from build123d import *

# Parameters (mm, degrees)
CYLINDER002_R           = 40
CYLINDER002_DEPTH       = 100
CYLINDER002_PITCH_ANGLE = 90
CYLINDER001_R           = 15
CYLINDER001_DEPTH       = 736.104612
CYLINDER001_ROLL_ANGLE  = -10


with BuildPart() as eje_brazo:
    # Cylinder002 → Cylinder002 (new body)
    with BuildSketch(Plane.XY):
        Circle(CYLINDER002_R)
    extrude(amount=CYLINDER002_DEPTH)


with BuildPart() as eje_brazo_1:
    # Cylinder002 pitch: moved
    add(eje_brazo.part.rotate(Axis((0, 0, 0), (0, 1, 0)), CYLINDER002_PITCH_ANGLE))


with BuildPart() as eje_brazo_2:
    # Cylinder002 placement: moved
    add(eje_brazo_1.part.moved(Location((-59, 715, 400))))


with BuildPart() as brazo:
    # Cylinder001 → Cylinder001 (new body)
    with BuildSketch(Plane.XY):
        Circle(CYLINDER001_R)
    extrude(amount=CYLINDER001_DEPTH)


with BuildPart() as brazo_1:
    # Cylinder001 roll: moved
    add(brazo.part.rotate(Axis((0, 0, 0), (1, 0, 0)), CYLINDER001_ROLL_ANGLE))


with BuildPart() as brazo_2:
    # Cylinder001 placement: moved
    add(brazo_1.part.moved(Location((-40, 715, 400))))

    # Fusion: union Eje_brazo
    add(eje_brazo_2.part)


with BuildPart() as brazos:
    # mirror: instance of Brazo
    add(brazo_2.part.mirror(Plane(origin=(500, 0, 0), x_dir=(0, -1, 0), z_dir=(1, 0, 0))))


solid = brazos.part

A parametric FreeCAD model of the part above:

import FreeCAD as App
import Part
import Sketcher

V = App.Vector
Q = App.Units.Quantity

doc = App.newDocument("Part")
body = doc.addObject("PartDesign::Body", "Body")

sketch1 = doc.addObject("Sketcher::SketchObject", "Sketch")
body.addObject(sketch1)
sketch1.AttachmentSupport = (doc.XY_Plane, [""])
sketch1.MapMode = "FlatFace"
sketch1.addGeometry(Part.Circle(V(0, 0, 0), V(0, 0, 1), 40), False)
sketch1.addConstraint(Sketcher.Constraint("Coincident", 0, 3, -1, 1))
sketch1.addConstraint(Sketcher.Constraint("Diameter", 0, Q("80 mm")))
pad1 = doc.addObject("PartDesign::Pad", "Pad")
body.addObject(pad1)
pad1.Profile = sketch1
pad1.Length = 100
body2 = doc.addObject("PartDesign::Body", "Body001")
doc.recompute()

body.Placement = App.Placement(V(0, 0, 0), App.Rotation(V(0, 1, 0), 90))
boolean = doc.addObject("PartDesign::Boolean", "Boolean")
body2.addObject(boolean)
boolean.Type = "Fuse"
boolean.addObjects([body])
body3 = doc.addObject("PartDesign::Body", "Body002")
doc.recompute()

body2.Placement = App.Placement(V(-59, 715, 400), App.Rotation(V(0, 0, 1), 0))
boolean2 = doc.addObject("PartDesign::Boolean", "Boolean001")
body3.addObject(boolean2)
boolean2.Type = "Fuse"
boolean2.addObjects([body2])
body4 = doc.addObject("PartDesign::Body", "Body003")

sketch2 = doc.addObject("Sketcher::SketchObject", "Sketch001")
body4.addObject(sketch2)
sketch2.AttachmentSupport = (doc.getObject("XY_Plane003"), [""])
sketch2.MapMode = "FlatFace"
sketch2.addGeometry(Part.Circle(V(0, 0, 0), V(0, 0, 1), 15), False)
sketch2.addConstraint(Sketcher.Constraint("Coincident", 0, 3, -1, 1))
sketch2.addConstraint(Sketcher.Constraint("Diameter", 0, Q("30 mm")))
pad2 = doc.addObject("PartDesign::Pad", "Pad001")
body4.addObject(pad2)
pad2.Profile = sketch2
pad2.Length = 736.104612
body5 = doc.addObject("PartDesign::Body", "Body004")
doc.recompute()

body4.Placement = App.Placement(V(0, 0, 0), App.Rotation(V(1, 0, 0), 350))
boolean3 = doc.addObject("PartDesign::Boolean", "Boolean002")
body5.addObject(boolean3)
boolean3.Type = "Fuse"
boolean3.addObjects([body4])
body6 = doc.addObject("PartDesign::Body", "Body005")
doc.recompute()

body5.Placement = App.Placement(V(-40, 715, 400), App.Rotation(V(0, 0, 1), 0))
boolean4 = doc.addObject("PartDesign::Boolean", "Boolean003")
body6.addObject(boolean4)
boolean4.Type = "Fuse"
boolean4.addObjects([body5])
doc.recompute()

boolean5 = doc.addObject("PartDesign::Boolean", "Boolean004")
body6.addObject(boolean5)
boolean5.Type = "Fuse"
boolean5.addObjects([body3])
body7 = doc.addObject("PartDesign::Body", "Body006")
doc.recompute()

mirroring = doc.addObject("Part::Mirroring", "Mirroring")
mirroring.Source = body6
mirroring.Base = V(500, 0, 0)
mirroring.Normal = V(1, 0, 0)
body7.BaseFeature = mirroring
doc.recompute()
body6.Visibility = False
mirroring.Visibility = False

doc.recompute()
